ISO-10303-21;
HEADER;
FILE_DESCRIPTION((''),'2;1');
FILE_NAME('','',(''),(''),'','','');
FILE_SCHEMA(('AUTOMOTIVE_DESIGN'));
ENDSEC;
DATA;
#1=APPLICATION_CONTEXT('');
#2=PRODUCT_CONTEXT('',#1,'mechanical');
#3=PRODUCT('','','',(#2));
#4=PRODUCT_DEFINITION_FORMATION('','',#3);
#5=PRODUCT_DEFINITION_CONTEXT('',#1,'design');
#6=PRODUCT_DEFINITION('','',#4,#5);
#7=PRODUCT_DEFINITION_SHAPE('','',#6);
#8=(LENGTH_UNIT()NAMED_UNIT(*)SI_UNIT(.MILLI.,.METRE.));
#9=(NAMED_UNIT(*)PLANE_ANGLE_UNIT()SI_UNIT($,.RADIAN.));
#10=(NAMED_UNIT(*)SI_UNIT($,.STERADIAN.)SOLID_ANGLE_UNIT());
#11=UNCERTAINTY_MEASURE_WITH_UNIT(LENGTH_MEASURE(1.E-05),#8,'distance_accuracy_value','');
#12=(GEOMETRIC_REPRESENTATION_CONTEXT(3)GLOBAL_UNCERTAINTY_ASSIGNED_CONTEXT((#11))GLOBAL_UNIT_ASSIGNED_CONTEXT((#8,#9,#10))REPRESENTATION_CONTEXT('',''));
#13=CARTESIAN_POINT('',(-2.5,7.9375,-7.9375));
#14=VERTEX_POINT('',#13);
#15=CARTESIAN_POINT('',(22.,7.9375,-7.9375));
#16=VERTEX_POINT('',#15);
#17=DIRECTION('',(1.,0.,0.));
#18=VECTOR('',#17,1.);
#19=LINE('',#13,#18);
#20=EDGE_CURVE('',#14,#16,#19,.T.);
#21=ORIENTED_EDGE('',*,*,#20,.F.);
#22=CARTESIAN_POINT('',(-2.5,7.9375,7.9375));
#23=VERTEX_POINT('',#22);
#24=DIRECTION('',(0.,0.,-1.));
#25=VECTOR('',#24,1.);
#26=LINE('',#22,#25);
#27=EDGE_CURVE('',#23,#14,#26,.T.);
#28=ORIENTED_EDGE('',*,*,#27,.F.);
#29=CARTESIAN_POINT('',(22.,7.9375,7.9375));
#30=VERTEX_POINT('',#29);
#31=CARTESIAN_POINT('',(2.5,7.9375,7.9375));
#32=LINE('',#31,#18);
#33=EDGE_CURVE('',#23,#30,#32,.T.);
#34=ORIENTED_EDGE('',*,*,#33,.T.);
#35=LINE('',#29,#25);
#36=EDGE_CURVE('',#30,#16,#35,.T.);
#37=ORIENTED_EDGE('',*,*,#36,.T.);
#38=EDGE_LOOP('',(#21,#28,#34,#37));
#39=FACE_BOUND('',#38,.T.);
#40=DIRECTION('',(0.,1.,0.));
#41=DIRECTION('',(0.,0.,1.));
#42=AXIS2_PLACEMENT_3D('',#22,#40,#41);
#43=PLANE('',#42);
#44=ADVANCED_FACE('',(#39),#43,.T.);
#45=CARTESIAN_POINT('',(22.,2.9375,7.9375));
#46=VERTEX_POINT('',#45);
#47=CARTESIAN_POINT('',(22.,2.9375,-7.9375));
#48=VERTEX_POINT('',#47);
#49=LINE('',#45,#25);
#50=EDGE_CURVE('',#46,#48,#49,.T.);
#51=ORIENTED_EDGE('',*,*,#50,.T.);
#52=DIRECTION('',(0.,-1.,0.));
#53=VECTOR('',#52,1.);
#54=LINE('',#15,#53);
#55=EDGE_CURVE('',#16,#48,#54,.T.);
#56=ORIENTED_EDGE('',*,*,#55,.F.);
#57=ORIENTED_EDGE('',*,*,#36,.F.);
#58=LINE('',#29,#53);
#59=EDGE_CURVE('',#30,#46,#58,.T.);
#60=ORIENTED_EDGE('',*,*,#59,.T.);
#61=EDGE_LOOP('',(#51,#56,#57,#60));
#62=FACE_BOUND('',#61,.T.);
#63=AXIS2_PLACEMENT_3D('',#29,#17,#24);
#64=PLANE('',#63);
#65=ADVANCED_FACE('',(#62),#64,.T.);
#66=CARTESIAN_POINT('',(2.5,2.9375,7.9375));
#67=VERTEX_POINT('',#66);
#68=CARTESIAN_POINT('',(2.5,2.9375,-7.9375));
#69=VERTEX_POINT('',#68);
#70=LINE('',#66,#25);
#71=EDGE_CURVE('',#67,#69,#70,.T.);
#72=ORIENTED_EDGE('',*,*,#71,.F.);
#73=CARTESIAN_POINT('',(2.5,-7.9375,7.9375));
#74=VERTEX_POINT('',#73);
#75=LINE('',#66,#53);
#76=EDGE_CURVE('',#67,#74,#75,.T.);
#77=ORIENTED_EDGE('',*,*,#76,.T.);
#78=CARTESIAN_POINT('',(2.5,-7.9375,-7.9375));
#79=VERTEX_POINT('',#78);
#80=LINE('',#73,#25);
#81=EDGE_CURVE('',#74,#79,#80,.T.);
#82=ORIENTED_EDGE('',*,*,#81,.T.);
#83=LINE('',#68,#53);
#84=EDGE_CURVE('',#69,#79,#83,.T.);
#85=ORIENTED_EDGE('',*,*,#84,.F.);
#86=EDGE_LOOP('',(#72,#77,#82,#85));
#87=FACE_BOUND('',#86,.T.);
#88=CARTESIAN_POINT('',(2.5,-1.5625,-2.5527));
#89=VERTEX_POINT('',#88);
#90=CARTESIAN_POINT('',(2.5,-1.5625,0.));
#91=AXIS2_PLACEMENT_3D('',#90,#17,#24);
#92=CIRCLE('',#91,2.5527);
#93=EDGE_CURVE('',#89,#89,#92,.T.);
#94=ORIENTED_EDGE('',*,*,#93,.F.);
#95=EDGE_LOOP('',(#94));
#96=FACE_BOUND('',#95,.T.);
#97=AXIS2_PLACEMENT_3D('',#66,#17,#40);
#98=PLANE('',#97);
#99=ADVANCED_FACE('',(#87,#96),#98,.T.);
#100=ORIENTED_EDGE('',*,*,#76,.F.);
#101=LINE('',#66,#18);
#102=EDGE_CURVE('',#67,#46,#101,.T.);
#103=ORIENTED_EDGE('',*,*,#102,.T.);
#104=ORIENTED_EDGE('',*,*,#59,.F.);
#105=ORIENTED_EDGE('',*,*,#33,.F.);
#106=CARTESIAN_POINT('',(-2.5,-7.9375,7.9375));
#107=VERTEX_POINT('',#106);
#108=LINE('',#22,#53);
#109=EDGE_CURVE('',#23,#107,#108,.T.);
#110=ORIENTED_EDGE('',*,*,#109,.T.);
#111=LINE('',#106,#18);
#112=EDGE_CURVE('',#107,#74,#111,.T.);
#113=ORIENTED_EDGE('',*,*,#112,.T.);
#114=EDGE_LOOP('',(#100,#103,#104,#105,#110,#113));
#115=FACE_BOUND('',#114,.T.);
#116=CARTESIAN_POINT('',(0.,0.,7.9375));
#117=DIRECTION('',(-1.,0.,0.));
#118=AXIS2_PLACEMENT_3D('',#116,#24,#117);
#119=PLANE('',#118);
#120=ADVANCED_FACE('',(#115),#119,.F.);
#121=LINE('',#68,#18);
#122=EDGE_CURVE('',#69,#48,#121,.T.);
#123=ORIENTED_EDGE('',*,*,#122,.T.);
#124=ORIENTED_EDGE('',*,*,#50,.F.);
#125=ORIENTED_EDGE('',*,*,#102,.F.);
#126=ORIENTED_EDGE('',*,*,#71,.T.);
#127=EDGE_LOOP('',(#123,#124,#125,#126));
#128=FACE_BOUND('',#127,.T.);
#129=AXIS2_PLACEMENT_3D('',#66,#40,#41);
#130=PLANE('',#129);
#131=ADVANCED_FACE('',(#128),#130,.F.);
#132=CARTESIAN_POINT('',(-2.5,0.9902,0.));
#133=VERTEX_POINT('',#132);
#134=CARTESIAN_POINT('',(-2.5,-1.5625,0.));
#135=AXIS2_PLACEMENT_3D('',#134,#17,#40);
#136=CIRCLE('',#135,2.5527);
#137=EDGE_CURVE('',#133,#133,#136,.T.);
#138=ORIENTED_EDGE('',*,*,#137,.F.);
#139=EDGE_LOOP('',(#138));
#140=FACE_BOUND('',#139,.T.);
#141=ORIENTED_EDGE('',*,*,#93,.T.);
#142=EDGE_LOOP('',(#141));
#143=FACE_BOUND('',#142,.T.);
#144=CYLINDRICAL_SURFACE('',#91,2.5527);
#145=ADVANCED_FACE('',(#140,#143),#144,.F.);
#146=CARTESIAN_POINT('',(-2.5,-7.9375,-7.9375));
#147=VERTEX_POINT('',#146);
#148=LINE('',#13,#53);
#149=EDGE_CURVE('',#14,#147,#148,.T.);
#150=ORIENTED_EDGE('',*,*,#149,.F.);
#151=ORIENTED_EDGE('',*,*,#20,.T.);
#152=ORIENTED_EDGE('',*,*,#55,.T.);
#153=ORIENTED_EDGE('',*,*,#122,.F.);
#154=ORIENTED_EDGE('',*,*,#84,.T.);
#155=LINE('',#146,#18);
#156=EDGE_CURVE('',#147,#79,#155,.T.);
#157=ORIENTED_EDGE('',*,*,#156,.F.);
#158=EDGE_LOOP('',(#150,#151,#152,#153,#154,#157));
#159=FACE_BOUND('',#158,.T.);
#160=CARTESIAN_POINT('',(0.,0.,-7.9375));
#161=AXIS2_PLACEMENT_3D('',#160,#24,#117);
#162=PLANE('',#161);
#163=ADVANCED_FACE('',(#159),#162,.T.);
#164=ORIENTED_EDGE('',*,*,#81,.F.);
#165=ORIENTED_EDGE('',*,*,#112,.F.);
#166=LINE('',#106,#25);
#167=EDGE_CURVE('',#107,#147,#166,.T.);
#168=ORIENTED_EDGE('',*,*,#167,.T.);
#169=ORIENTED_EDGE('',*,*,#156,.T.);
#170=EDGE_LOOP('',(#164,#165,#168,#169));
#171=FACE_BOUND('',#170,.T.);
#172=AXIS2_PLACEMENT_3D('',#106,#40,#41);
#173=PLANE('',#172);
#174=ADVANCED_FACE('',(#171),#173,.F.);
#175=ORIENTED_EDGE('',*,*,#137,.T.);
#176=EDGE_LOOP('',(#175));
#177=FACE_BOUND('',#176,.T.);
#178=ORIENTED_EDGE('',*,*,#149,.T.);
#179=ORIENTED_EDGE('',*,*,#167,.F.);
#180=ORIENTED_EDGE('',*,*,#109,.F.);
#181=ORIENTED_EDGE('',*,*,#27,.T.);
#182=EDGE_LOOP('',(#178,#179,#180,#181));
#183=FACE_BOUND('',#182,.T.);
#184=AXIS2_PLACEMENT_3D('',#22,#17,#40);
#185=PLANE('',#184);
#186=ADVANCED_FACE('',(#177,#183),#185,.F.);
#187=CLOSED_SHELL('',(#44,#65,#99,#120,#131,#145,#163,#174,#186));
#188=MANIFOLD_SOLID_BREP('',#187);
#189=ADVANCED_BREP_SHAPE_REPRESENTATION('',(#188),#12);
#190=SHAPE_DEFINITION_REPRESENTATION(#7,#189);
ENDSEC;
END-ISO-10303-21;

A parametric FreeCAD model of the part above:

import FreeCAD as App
import Part
import Sketcher
from FreeCAD import Vector
Q = App.Units.Quantity

doc = App.newDocument("Part")
body = doc.addObject("PartDesign::Body", "Body")

# Sketch on XY plane
sketch1 = body.newObject("Sketcher::SketchObject", "Sketch")
sketch1.AttachmentSupport = (doc.getObject("XY_Plane"), [""])
sketch1.MapMode = "FlatFace"
sketch1.addGeometry([
    Part.LineSegment(Vector(22, 8, 0), Vector(-2, 8, 0)),  # 0
    Part.LineSegment(Vector(-2, 8, 0), Vector(-2, -8, 0)),  # 1
    Part.LineSegment(Vector(-2, -8, 0), Vector(2, -8, 0)),  # 2
    Part.LineSegment(Vector(2, -8, 0), Vector(2, 3, 0)),  # 3
    Part.LineSegment(Vector(2, 3, 0), Vector(22, 3, 0)),  # 4
    Part.LineSegment(Vector(22, 3, 0), Vector(22, 8, 0)),  # 5
], False)
sketch1.addConstraint([
    Sketcher.Constraint("Coincident", 0, 2, 1, 1),
    Sketcher.Constraint("Coincident", 1, 2, 2, 1),
    Sketcher.Constraint("Coincident", 2, 2, 3, 1),
    Sketcher.Constraint("Coincident", 3, 2, 4, 1),
    Sketcher.Constraint("Coincident", 4, 2, 5, 1),
    Sketcher.Constraint("Coincident", 5, 2, 0, 1),
    Sketcher.Constraint("Horizontal", 0),
    Sketcher.Constraint("Vertical", 1),
    Sketcher.Constraint("Horizontal", 2),
    Sketcher.Constraint("Vertical", 3),
    Sketcher.Constraint("Horizontal", 4),
    Sketcher.Constraint("Vertical", 5),
    Sketcher.Constraint("Symmetric", 0, 2, 2, 2, -1, 1),
    Sketcher.Constraint("Equal", 2, 5),
    Sketcher.Constraint("DistanceX", 2, 1, 2, 2, Q("5 mm")),
    Sketcher.Constraint("DistanceX", 0, 2, 0, 1, Q("24.5 mm")),
    Sketcher.Constraint("DistanceY", 1, 2, 1, 1, Q("15.875 mm")),
])
pad1 = body.newObject("PartDesign::Pad", "Pad")
pad1.Profile = sketch1
pad1.Length = 15.875
pad1.Midplane = True

# Sketch on YZ plane
sketch2 = body.newObject("Sketcher::SketchObject", "Sketch001")
sketch2.AttachmentSupport = (doc.getObject("YZ_Plane"), [""])
sketch2.MapMode = "FlatFace"
sketch2.AttachmentOffset = App.Placement(Vector(0, 0, 2.5), App.Rotation())
sketch2.addGeometry(Part.Circle(Vector(-1.6, 0, 0), Vector(0, 0, 1), 2.6), False)
sketch2.addConstraint([
    Sketcher.Constraint("PointOnObject", 0, 3, -1),
    Sketcher.Constraint("Diameter", 0, Q("5.1054 mm")),
    Sketcher.Constraint("DistanceX", 0, 3, -1, 1, Q("1.5625 mm")),
])
doc.recompute()
hole = body.newObject("PartDesign::Hole", "Hole")
hole.Profile = sketch2
hole.ThreadType = "None"
hole.Diameter = 5.1054
hole.DepthType = "ThroughAll"

doc.recompute()
